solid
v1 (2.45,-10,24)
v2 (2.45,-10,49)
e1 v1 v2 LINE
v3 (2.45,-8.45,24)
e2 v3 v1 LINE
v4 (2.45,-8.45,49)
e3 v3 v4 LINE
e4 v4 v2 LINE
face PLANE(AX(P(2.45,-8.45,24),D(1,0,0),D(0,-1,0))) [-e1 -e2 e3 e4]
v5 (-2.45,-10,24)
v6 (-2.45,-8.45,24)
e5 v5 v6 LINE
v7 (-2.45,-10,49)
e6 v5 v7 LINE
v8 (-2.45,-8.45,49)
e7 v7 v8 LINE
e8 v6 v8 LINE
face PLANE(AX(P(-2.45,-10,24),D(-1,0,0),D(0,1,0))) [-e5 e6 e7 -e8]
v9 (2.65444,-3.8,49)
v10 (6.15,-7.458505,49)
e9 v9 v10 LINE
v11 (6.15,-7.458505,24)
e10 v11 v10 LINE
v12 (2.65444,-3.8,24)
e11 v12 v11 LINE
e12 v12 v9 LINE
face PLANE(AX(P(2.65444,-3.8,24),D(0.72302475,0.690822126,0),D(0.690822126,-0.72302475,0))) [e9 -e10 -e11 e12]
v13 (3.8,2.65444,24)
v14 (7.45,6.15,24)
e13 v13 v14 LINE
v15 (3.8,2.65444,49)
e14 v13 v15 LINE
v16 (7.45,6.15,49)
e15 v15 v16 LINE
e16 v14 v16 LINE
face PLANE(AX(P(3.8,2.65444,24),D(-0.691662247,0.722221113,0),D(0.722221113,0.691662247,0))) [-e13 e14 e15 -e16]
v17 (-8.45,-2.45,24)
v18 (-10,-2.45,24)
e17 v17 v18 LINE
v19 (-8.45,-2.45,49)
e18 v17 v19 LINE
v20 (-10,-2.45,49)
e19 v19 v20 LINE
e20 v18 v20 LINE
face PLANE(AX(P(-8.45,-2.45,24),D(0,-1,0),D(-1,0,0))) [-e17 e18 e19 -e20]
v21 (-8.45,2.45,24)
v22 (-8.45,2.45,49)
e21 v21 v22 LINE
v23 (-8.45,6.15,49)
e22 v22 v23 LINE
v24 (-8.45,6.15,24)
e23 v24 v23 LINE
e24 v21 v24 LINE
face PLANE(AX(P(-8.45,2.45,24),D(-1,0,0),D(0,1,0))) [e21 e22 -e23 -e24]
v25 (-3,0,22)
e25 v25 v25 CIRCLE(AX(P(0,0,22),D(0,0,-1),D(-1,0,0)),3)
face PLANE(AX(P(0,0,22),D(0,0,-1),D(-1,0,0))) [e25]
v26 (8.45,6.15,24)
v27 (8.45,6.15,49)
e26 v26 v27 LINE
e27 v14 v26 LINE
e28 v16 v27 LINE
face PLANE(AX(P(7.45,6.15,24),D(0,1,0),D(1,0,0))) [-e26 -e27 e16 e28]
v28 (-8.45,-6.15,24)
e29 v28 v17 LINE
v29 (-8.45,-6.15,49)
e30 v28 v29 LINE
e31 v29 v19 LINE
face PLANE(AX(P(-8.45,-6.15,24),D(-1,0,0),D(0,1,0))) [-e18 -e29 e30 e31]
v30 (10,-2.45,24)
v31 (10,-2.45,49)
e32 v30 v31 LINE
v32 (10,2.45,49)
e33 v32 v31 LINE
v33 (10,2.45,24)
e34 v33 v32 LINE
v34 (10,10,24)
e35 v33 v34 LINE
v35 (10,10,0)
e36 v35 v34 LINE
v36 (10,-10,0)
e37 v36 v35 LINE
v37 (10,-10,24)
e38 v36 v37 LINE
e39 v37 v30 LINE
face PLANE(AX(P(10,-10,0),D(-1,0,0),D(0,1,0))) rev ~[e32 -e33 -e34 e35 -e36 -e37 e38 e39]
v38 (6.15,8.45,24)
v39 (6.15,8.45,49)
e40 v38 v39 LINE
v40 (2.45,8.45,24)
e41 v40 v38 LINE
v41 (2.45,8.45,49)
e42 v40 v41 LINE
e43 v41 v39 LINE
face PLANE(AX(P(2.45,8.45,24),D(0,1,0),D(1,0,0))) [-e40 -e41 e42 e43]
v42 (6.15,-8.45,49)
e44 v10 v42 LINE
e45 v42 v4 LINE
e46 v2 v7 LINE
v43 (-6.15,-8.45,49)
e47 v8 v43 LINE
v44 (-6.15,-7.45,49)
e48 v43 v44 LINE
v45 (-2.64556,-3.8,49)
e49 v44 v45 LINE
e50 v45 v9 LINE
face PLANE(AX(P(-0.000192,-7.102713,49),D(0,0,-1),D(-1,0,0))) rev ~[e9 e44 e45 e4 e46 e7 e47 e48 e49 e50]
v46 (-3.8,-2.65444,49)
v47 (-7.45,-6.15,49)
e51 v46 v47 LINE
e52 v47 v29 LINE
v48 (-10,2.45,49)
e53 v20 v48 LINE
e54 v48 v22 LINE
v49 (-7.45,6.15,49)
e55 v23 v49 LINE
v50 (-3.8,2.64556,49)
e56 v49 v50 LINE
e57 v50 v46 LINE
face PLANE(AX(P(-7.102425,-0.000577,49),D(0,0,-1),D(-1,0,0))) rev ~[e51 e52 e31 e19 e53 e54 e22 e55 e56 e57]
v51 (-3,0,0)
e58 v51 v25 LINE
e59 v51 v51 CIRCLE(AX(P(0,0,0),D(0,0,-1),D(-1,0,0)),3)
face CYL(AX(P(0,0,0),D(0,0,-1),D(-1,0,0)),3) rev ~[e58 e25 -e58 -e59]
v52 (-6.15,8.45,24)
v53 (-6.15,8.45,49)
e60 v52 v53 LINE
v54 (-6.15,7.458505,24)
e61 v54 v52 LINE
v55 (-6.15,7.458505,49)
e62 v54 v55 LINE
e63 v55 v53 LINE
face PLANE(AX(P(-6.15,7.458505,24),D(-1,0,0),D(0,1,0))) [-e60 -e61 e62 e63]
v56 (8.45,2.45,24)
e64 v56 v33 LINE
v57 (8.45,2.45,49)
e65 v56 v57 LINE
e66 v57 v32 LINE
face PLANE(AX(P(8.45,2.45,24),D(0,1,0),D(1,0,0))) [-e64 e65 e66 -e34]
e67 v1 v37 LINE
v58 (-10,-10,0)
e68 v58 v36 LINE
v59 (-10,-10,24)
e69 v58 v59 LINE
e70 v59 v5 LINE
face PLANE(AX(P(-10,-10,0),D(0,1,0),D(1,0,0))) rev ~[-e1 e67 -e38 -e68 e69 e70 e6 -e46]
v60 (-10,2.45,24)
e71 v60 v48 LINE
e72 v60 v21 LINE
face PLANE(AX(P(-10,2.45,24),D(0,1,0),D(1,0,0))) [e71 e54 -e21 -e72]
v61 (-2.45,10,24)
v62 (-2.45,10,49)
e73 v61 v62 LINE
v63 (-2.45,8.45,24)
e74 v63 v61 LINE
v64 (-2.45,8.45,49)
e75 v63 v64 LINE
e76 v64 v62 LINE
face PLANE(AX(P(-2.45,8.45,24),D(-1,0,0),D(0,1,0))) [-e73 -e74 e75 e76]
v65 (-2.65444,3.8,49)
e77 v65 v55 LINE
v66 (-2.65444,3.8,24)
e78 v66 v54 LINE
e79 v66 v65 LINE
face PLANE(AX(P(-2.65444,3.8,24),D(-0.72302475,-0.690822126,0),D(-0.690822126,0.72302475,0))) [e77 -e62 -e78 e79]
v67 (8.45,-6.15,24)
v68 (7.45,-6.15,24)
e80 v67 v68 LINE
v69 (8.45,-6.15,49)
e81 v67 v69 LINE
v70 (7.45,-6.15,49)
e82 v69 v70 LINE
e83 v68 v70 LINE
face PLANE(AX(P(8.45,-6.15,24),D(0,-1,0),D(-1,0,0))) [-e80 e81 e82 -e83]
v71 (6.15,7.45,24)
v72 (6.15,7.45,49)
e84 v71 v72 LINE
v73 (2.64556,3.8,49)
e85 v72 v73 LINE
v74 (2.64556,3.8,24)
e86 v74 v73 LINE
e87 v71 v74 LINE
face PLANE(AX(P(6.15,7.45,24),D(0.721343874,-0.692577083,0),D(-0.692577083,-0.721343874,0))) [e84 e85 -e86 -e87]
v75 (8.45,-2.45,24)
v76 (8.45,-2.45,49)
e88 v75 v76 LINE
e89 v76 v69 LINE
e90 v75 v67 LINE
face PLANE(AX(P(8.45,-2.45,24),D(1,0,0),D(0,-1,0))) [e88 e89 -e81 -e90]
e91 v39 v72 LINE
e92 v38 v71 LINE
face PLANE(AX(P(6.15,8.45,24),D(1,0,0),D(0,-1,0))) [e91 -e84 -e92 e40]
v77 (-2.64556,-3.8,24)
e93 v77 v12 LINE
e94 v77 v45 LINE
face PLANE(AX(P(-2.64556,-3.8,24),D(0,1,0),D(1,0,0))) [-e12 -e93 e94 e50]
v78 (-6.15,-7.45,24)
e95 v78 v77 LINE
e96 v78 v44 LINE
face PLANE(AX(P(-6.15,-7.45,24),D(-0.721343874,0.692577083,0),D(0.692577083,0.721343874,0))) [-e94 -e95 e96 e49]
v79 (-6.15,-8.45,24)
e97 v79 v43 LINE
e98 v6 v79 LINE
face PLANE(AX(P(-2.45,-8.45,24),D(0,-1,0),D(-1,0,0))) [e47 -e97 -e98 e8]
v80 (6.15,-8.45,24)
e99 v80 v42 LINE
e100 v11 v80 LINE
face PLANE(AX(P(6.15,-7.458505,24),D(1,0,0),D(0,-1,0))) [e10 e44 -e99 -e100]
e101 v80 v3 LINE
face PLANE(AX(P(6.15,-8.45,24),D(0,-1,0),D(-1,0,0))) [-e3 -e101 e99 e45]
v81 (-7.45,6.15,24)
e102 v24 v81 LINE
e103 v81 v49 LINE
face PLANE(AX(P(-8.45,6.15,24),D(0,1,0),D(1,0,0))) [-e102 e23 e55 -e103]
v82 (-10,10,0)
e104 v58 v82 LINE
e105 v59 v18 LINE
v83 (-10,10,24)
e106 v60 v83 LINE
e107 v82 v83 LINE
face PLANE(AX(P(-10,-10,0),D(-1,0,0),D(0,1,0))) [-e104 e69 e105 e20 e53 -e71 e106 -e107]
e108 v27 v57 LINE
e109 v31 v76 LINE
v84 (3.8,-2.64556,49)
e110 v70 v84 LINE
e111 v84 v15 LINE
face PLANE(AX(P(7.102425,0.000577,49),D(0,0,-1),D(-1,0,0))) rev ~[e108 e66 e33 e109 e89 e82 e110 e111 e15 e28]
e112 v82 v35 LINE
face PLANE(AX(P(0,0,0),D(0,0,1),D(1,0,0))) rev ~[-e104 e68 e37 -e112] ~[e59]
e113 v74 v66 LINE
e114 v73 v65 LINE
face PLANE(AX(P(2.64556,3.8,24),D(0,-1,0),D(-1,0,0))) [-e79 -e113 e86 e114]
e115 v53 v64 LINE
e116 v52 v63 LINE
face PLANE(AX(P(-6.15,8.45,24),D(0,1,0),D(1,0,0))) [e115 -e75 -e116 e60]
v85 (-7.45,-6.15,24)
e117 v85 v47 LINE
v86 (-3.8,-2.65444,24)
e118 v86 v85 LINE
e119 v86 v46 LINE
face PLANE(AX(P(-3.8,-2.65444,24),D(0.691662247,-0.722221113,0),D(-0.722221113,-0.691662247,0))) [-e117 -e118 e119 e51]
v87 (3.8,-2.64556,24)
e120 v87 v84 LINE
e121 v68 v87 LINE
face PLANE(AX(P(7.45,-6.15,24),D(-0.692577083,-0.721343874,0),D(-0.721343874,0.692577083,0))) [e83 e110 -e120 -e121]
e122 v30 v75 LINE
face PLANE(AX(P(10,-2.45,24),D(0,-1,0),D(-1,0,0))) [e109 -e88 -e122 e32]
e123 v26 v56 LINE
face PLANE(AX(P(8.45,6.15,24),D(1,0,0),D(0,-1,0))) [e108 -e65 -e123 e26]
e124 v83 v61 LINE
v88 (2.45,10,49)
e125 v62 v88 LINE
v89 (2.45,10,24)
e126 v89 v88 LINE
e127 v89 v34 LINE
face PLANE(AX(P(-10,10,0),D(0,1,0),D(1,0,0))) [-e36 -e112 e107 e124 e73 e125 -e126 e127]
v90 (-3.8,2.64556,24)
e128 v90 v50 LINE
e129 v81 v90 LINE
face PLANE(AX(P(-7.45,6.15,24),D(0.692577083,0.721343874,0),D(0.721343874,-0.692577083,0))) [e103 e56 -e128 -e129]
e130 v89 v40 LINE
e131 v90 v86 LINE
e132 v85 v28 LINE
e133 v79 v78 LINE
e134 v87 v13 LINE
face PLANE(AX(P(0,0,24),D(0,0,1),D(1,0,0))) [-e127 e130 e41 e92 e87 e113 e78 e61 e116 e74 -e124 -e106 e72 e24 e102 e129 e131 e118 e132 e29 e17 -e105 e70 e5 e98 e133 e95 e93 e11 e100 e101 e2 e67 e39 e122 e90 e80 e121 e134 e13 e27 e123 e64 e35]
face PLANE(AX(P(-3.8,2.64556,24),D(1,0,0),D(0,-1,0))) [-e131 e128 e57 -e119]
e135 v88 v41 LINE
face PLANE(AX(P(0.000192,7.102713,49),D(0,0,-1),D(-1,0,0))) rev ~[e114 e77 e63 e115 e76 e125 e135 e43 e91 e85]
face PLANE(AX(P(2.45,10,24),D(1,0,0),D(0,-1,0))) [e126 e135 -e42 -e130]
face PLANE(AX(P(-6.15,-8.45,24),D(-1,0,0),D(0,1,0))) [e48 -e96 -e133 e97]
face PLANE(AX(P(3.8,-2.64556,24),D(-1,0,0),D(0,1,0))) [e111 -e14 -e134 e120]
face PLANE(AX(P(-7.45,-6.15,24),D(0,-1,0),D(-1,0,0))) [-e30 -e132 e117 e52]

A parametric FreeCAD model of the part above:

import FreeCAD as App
import Part
import Sketcher
from FreeCAD import Vector
Q = App.Units.Quantity


def add_polygon(sketch, points):
    """Adds a closed chain of lines whose ends are joined by coincident constraints."""
    first, n = sketch.GeometryCount, len(points)
    for a, b in zip(points, points[1:] + points[:1]):
        sketch.addGeometry(Part.LineSegment(App.Vector(*a, 0), App.Vector(*b, 0)), False)
    for i in range(n):
        sketch.addConstraint(Sketcher.Constraint("Coincident", first + i, 2, first + (i + 1) % n, 1))

doc = App.newDocument("Part")
body = doc.addObject("PartDesign::Body", "Body")

sketch1 = body.newObject("Sketcher::SketchObject", "Sketch")
sketch1.AttachmentSupport = (doc.getObject("XY_Plane"), [""])
sketch1.MapMode = "FlatFace"
add_polygon(sketch1, [(-10, 10), (-10, -10), (10, -10), (10, 10)])
sketch1.addConstraint(Sketcher.Constraint("Vertical", 0))
sketch1.addConstraint(Sketcher.Constraint("Horizontal", 1))
sketch1.addConstraint(Sketcher.Constraint("Vertical", 2))
sketch1.addConstraint(Sketcher.Constraint("Horizontal", 3))
sketch1.addConstraint(Sketcher.Constraint("Symmetric", 0, 2, 2, 2, -1, 1))
sketch1.addConstraint(Sketcher.Constraint("Equal", 3, 0))
sketch1.addConstraint(Sketcher.Constraint("DistanceX", 1, 1, 1, 2, Q("20 mm")))
pad1 = body.newObject("PartDesign::Pad", "Pad")
pad1.Profile = sketch1
pad1.Length = 24

sketch2 = body.newObject("Sketcher::SketchObject", "Sketch001")
sketch2.AttachmentSupport = (doc.getObject("XY_Plane"), [""])
sketch2.MapMode = "FlatFace"
sketch2.AttachmentOffset = App.Placement(Vector(0, 0, 24), App.Rotation())
add_polygon(sketch2, [(-2.5, -8.4), (-2.5, -10), (2.5, -10), (2.5, -8.4), (6.2, -8.4), (6.2, -7.5), (2.7, -3.8), (-2.6, -3.8), (-6.2, -7.5), (-6.2, -8.4)])
sketch2.addConstraint(Sketcher.Constraint("Vertical", 0))
sketch2.addConstraint(Sketcher.Constraint("Horizontal", 1))
sketch2.addConstraint(Sketcher.Constraint("Vertical", 2))
sketch2.addConstraint(Sketcher.Constraint("Horizontal", 3))
sketch2.addConstraint(Sketcher.Constraint("Vertical", 4))
sketch2.addConstraint(Sketcher.Constraint("Horizontal", 6))
sketch2.addConstraint(Sketcher.Constraint("Vertical", 8))
sketch2.addConstraint(Sketcher.Constraint("Horizontal", 9))
sketch2.addConstraint(Sketcher.Constraint("Symmetric", 3, 2, 8, 2, -2))
sketch2.addConstraint(Sketcher.Constraint("Equal", 3, 9))
sketch2.addConstraint(Sketcher.Constraint("Equal", 5, 7))
sketch2.addConstraint(Sketcher.Constraint("DistanceY", 8, 2, 8, 1, Q("1 mm")))
sketch2.addConstraint(Sketcher.Constraint("DistanceX", 1, 1, 1, 2, Q("4.9 mm")))
sketch2.addConstraint(Sketcher.Constraint("DistanceX", 3, 1, 3, 2, Q("3.7 mm")))
sketch2.addConstraint(Sketcher.Constraint("DistanceX", 6, 2, 6, 1, Q("5.3 mm")))
sketch2.addConstraint(Sketcher.Constraint("DistanceY", 0, 2, -1, 1, Q("10 mm")))
sketch2.addConstraint(Sketcher.Constraint("DistanceY", 0, 2, 0, 1, Q("1.55 mm")))
sketch2.addConstraint(Sketcher.Constraint("DistanceY", 5, 2, -1, 1, Q("3.8 mm")))
sketch2.addConstraint(Sketcher.Constraint("Distance", 5, Q("5.06 mm")))
pad2 = body.newObject("PartDesign::Pad", "Pad001")
pad2.Profile = sketch2
pad2.Length = 25

sketch3 = body.newObject("Sketcher::SketchObject", "Sketch002")
sketch3.AttachmentSupport = (doc.getObject("XY_Plane"), [""])
sketch3.MapMode = "FlatFace"
sketch3.AttachmentOffset = App.Placement(Vector(0, 0, 24), App.Rotation())
add_polygon(sketch3, [(8.4, -2.5), (10, -2.5), (10, 2.5), (8.4, 2.5), (8.4, 6.2), (7.5, 6.2), (3.8, 2.7), (3.8, -2.6), (7.5, -6.2), (8.4, -6.2)])
sketch3.addConstraint(Sketcher.Constraint("Horizontal", 0))
sketch3.addConstraint(Sketcher.Constraint("Vertical", 1))
sketch3.addConstraint(Sketcher.Constraint("Horizontal", 2))
sketch3.addConstraint(Sketcher.Constraint("Vertical", 3))
sketch3.addConstraint(Sketcher.Constraint("Horizontal", 4))
sketch3.addConstraint(Sketcher.Constraint("Vertical", 6))
sketch3.addConstraint(Sketcher.Constraint("Horizontal", 8))
sketch3.addConstraint(Sketcher.Constraint("Vertical", 9))
sketch3.addConstraint(Sketcher.Constraint("Symmetric", 4, 2, 7, 2, -1))
sketch3.addConstraint(Sketcher.Constraint("Symmetric", 2, 2, 9, 2, -1))
sketch3.addConstraint(Sketcher.Constraint("DistanceX", 4, 2, 4, 1, Q("1 mm")))
sketch3.addConstraint(Sketcher.Constraint("DistanceY", 1, 1, 1, 2, Q("4.9 mm")))
sketch3.addConstraint(Sketcher.Constraint("DistanceY", 3, 1, 3, 2, Q("3.7 mm")))
sketch3.addConstraint(Sketcher.Constraint("DistanceY", 6, 2, 6, 1, Q("5.3 mm")))
sketch3.addConstraint(Sketcher.Constraint("DistanceX", -1, 1, 0, 2, Q("10 mm")))
sketch3.addConstraint(Sketcher.Constraint("DistanceX", 0, 1, 0, 2, Q("1.55 mm")))
sketch3.addConstraint(Sketcher.Constraint("DistanceX", -1, 1, 5, 2, Q("3.8 mm")))
sketch3.addConstraint(Sketcher.Constraint("Distance", 7, Q("5.06 mm")))
pad3 = body.newObject("PartDesign::Pad", "Pad002")
pad3.Profile = sketch3
pad3.Length = 25

sketch4 = body.newObject("Sketcher::SketchObject", "Sketch003")
sketch4.AttachmentSupport = (doc.getObject("XY_Plane"), [""])
sketch4.MapMode = "FlatFace"
sketch4.AttachmentOffset = App.Placement(Vector(0, 0, 24), App.Rotation())
add_polygon(sketch4, [(2.5, 8.4), (2.5, 10), (-2.5, 10), (-2.5, 8.4), (-6.2, 8.4), (-6.2, 7.5), (-2.7, 3.8), (2.6, 3.8), (6.2, 7.5), (6.2, 8.4)])
sketch4.addConstraint(Sketcher.Constraint("Vertical", 0))
sketch4.addConstraint(Sketcher.Constraint("Horizontal", 1))
sketch4.addConstraint(Sketcher.Constraint("Vertical", 2))
sketch4.addConstraint(Sketcher.Constraint("Horizontal", 3))
sketch4.addConstraint(Sketcher.Constraint("Vertical", 4))
sketch4.addConstraint(Sketcher.Constraint("Horizontal", 6))
sketch4.addConstraint(Sketcher.Constraint("Vertical", 8))
sketch4.addConstraint(Sketcher.Constraint("Horizontal", 9))
sketch4.addConstraint(Sketcher.Constraint("Symmetric", 3, 2, 8, 2, -2))
sketch4.addConstraint(Sketcher.Constraint("Equal", 3, 9))
sketch4.addConstraint(Sketcher.Constraint("Equal", 5, 7))
sketch4.addConstraint(Sketcher.Constraint("DistanceY", 8, 1, 8, 2, Q("1 mm")))
sketch4.addConstraint(Sketcher.Constraint("DistanceX", 1, 2, 1, 1, Q("4.9 mm")))
sketch4.addConstraint(Sketcher.Constraint("DistanceX", 3, 2, 3, 1, Q("3.7 mm")))
sketch4.addConstraint(Sketcher.Constraint("DistanceX", 6, 1, 6, 2, Q("5.3 mm")))
sketch4.addConstraint(Sketcher.Constraint("DistanceY", -1, 1, 0, 2, Q("10 mm")))
sketch4.addConstraint(Sketcher.Constraint("DistanceY", 0, 1, 0, 2, Q("1.55 mm")))
sketch4.addConstraint(Sketcher.Constraint("DistanceY", -1, 1, 5, 2, Q("3.8 mm")))
sketch4.addConstraint(Sketcher.Constraint("Distance", 5, Q("5.06 mm")))
pad4 = body.newObject("PartDesign::Pad", "Pad003")
pad4.Profile = sketch4
pad4.Length = 25

sketch5 = body.newObject("Sketcher::SketchObject", "Sketch004")
sketch5.AttachmentSupport = (doc.getObject("XY_Plane"), [""])
sketch5.MapMode = "FlatFace"
sketch5.AttachmentOffset = App.Placement(Vector(0, 0, 24), App.Rotation())
add_polygon(sketch5, [(-8.4, 2.5), (-10, 2.5), (-10, -2.5), (-8.4, -2.5), (-8.4, -6.2), (-7.5, -6.2), (-3.8, -2.7), (-3.8, 2.6), (-7.5, 6.2), (-8.4, 6.2)])
sketch5.addConstraint(Sketcher.Constraint("Horizontal", 0))
sketch5.addConstraint(Sketcher.Constraint("Vertical", 1))
sketch5.addConstraint(Sketcher.Constraint("Horizontal", 2))
sketch5.addConstraint(Sketcher.Constraint("Vertical", 3))
sketch5.addConstraint(Sketcher.Constraint("Horizontal", 4))
sketch5.addConstraint(Sketcher.Constraint("Vertical", 6))
sketch5.addConstraint(Sketcher.Constraint("Horizontal", 8))
sketch5.addConstraint(Sketcher.Constraint("Vertical", 9))
sketch5.addConstraint(Sketcher.Constraint("Symmetric", 4, 2, 7, 2, -1))
sketch5.addConstraint(Sketcher.Constraint("Symmetric", 2, 2, 9, 2, -1))
sketch5.addConstraint(Sketcher.Constraint("DistanceX", 4, 1, 4, 2, Q("1 mm")))
sketch5.addConstraint(Sketcher.Constraint("DistanceY", 1, 2, 1, 1, Q("4.9 mm")))
sketch5.addConstraint(Sketcher.Constraint("DistanceY", 3, 2, 3, 1, Q("3.7 mm")))
sketch5.addConstraint(Sketcher.Constraint("DistanceY", 6, 1, 6, 2, Q("5.3 mm")))
sketch5.addConstraint(Sketcher.Constraint("DistanceX", 0, 2, -1, 1, Q("10 mm")))
sketch5.addConstraint(Sketcher.Constraint("DistanceX", 0, 2, 0, 1, Q("1.55 mm")))
sketch5.addConstraint(Sketcher.Constraint("DistanceX", 5, 2, -1, 1, Q("3.8 mm")))
sketch5.addConstraint(Sketcher.Constraint("Distance", 7, Q("5.06 mm")))
pad5 = body.newObject("PartDesign::Pad", "Pad004")
pad5.Profile = sketch5
pad5.Length = 25

sketch6 = body.newObject("Sketcher::SketchObject", "Sketch005")
sketch6.AttachmentSupport = (doc.getObject("XY_Plane"), [""])
sketch6.MapMode = "FlatFace"
sketch6.addGeometry(Part.Circle(Vector(0, 0, 0), Vector(0, 0, 1), 3), False)
sketch6.addConstraint(Sketcher.Constraint("Coincident", 0, 3, -1, 1))
sketch6.addConstraint(Sketcher.Constraint("Diameter", 0, Q("6 mm")))
pocket1 = body.newObject("PartDesign::Pocket", "Pocket")
pocket1.Profile = sketch6
pocket1.Length = 22
pocket1.Reversed = True

doc.recompute()
